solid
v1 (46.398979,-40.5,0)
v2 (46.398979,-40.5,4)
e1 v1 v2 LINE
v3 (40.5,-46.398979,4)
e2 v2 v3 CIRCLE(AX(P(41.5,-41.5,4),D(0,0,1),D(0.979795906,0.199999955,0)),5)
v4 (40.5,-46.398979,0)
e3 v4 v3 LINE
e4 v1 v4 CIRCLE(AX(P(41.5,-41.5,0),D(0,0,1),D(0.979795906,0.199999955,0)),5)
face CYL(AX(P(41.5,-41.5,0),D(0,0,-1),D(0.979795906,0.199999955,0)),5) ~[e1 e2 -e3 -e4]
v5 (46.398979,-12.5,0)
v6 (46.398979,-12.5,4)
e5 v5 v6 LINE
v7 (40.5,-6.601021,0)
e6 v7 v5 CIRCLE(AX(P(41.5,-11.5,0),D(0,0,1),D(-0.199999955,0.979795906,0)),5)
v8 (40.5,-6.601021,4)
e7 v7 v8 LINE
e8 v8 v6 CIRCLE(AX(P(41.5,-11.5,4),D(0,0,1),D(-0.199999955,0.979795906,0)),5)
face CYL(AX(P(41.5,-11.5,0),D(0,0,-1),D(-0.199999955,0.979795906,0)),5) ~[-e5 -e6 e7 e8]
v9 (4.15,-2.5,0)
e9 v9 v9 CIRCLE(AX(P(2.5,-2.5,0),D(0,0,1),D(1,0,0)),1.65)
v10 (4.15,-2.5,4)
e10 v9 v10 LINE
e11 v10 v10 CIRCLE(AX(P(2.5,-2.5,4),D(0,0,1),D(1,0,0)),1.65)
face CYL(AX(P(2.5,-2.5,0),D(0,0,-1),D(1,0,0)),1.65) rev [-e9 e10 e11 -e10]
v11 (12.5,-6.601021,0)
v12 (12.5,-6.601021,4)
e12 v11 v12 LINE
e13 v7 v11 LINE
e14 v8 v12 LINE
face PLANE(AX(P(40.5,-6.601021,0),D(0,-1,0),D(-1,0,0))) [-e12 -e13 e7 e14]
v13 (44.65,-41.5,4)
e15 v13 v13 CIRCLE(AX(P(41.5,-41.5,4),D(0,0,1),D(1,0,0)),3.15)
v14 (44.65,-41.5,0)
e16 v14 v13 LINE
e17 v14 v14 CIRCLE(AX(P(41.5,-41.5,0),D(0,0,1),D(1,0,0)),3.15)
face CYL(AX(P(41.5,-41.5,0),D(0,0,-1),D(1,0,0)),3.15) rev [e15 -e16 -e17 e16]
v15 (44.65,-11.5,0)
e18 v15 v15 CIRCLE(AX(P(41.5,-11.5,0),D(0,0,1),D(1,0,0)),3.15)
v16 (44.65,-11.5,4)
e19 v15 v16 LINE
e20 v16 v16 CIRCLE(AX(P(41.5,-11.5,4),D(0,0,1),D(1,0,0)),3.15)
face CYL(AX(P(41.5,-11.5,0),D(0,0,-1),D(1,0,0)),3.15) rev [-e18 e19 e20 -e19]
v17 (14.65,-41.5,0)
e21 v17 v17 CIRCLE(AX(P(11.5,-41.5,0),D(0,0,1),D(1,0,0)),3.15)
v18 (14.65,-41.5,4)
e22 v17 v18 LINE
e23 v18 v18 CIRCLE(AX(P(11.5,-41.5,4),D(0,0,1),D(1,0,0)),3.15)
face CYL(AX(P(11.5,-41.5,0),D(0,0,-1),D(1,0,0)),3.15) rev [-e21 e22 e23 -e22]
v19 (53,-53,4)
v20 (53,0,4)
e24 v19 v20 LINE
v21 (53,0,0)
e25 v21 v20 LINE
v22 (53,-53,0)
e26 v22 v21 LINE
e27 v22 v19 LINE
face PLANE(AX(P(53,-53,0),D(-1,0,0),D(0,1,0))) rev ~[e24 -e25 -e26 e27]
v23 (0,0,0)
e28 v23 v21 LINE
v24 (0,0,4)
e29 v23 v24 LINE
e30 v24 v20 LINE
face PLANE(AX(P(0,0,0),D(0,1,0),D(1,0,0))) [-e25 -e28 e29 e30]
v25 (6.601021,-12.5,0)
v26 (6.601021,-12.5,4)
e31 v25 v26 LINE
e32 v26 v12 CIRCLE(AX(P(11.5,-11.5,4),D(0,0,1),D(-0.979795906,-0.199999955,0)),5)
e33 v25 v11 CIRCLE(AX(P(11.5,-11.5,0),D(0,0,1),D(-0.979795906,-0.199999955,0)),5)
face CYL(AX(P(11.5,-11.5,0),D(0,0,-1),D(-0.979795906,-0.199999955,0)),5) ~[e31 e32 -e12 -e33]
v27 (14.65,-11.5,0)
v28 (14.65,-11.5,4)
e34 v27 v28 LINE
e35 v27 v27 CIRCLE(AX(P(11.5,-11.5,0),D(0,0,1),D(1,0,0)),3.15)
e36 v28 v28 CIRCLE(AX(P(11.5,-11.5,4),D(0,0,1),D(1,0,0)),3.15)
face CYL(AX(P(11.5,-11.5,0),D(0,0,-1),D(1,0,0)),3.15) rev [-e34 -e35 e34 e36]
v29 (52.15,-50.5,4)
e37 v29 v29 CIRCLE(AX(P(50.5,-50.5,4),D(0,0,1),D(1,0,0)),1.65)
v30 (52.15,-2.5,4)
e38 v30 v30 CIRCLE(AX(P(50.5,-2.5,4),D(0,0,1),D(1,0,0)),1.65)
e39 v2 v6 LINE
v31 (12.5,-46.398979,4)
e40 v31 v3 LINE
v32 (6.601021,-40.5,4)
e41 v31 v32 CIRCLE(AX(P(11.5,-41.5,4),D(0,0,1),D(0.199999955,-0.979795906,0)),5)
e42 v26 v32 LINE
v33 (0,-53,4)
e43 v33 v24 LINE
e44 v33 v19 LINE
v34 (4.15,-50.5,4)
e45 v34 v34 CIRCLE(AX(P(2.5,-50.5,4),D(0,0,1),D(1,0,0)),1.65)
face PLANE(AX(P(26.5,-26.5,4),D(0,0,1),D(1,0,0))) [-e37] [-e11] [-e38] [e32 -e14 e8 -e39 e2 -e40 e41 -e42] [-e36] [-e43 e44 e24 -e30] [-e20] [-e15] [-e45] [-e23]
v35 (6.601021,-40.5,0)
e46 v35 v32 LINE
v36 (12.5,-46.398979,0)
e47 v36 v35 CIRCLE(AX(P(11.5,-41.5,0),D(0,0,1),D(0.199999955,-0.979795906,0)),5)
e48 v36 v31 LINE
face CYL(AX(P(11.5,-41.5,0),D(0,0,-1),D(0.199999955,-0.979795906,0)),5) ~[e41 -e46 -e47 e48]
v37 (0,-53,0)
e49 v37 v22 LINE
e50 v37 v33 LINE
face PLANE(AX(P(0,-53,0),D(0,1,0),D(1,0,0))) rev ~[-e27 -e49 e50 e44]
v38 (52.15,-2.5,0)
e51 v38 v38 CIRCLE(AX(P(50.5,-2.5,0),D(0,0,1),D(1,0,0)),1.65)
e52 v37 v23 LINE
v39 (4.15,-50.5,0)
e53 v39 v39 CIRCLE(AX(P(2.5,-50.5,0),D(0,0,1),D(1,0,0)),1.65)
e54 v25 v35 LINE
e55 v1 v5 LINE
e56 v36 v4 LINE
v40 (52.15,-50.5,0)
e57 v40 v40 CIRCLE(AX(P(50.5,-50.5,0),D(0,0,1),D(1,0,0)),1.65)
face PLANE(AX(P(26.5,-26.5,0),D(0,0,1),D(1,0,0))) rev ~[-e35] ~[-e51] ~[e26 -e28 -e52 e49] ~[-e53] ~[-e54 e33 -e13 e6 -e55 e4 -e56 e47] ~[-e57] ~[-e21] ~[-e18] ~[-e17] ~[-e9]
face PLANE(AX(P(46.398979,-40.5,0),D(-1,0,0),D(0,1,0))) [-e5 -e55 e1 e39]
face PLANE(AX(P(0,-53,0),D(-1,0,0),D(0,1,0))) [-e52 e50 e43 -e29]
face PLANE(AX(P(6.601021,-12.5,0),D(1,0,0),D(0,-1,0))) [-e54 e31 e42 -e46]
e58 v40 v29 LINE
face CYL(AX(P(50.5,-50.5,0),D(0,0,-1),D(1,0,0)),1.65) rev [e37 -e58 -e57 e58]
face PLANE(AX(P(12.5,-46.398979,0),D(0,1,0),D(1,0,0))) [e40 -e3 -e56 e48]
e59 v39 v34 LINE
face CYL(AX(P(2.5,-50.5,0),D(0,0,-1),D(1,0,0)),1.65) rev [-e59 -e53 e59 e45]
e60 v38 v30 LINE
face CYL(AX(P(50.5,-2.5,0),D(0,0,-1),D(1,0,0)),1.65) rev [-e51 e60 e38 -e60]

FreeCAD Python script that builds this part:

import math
import FreeCAD as App
import Part
import Sketcher
from FreeCAD import Vector


def add_polygon(sketch, points):
    """Adds a closed chain of lines whose ends are joined by coincident constraints."""
    first, n = sketch.GeometryCount, len(points)
    for a, b in zip(points, points[1:] + points[:1]):
        sketch.addGeometry(Part.LineSegment(App.Vector(*a, 0), App.Vector(*b, 0)), False)
    for i in range(n):
        sketch.addConstraint(Sketcher.Constraint("Coincident", first + i, 2, first + (i + 1) % n, 1))

doc = App.newDocument("Part")
body = doc.addObject("PartDesign::Body", "Body")

# Sketch on XY plane
sketch1 = body.newObject("Sketcher::SketchObject", "Sketch")
sketch1.AttachmentSupport = (doc.getObject("XY_Plane"), [""])
sketch1.MapMode = "FlatFace"
add_polygon(sketch1, [(0, 0), (0, -53), (53, -53), (53, 0)])  # lines 0-3
sketch1.addGeometry(Part.Circle(Vector(2.5, -50.5, 0), Vector(0, 0, 1), 1.65), False)  # 4
sketch1.addGeometry(Part.Circle(Vector(11.5, -41.5, 0), Vector(0, 0, 1), 3.15), False)  # 5
sketch1.addGeometry(Part.Circle(Vector(50.5, -50.5, 0), Vector(0, 0, 1), 1.65), False)  # 6
sketch1.addGeometry(Part.Circle(Vector(41.5, -41.5, 0), Vector(0, 0, 1), 3.15), False)  # 7
sketch1.addGeometry(Part.Circle(Vector(11.5, -11.5, 0), Vector(0, 0, 1), 3.15), False)  # 8
sketch1.addGeometry(Part.Circle(Vector(2.5, -2.5, 0), Vector(0, 0, 1), 1.65), False)  # 9
sketch1.addGeometry(Part.LineSegment(Vector(6.601021, -40.5, 0), Vector(6.601021, -12.5, 0)), False)  # 10
sketch1.addGeometry(Part.ArcOfCircle(Part.Circle(Vector(11.5, -11.5, 0), Vector(0, 0, 1), 5), math.radians(-168.463044), math.radians(78.463044)), False)  # 11
sketch1.addGeometry(Part.LineSegment(Vector(12.5, -6.601021, 0), Vector(40.5, -6.601021, 0)), False)  # 12
sketch1.addGeometry(Part.ArcOfCircle(Part.Circle(Vector(41.5, -11.5, 0), Vector(0, 0, 1), 5), math.radians(101.536956), math.radians(348.463044)), False)  # 13
sketch1.addGeometry(Part.LineSegment(Vector(46.398979, -12.5, 0), Vector(46.398979, -40.5, 0)), False)  # 14
sketch1.addGeometry(Part.ArcOfCircle(Part.Circle(Vector(41.5, -41.5, 0), Vector(0, 0, 1), 5), math.radians(11.536956), math.radians(258.463044)), False)  # 15
sketch1.addGeometry(Part.LineSegment(Vector(40.5, -46.398979, 0), Vector(12.5, -46.398979, 0)), False)  # 16
sketch1.addGeometry(Part.ArcOfCircle(Part.Circle(Vector(11.5, -41.5, 0), Vector(0, 0, 1), 5), math.radians(-78.463044), math.radians(168.463044)), False)  # 17
sketch1.addGeometry(Part.Circle(Vector(41.5, -11.5, 0), Vector(0, 0, 1), 3.15), False)  # 18
sketch1.addGeometry(Part.Circle(Vector(50.5, -2.5, 0), Vector(0, 0, 1), 1.65), False)  # 19
sketch1.addConstraint(Sketcher.Constraint("Coincident", 10, 2, 11, 1))
sketch1.addConstraint(Sketcher.Constraint("Coincident", 11, 2, 12, 1))
sketch1.addConstraint(Sketcher.Constraint("Coincident", 12, 2, 13, 1))
sketch1.addConstraint(Sketcher.Constraint("Coincident", 13, 2, 14, 1))
sketch1.addConstraint(Sketcher.Constraint("Coincident", 14, 2, 15, 1))
sketch1.addConstraint(Sketcher.Constraint("Coincident", 15, 2, 16, 1))
sketch1.addConstraint(Sketcher.Constraint("Coincident", 16, 2, 17, 1))
sketch1.addConstraint(Sketcher.Constraint("Coincident", 17, 2, 10, 1))
sketch1.addConstraint(Sketcher.Constraint("Vertical", 0))
sketch1.addConstraint(Sketcher.Constraint("Horizontal", 1))
sketch1.addConstraint(Sketcher.Constraint("Vertical", 2))
sketch1.addConstraint(Sketcher.Constraint("Horizontal", 3))
sketch1.addConstraint(Sketcher.Constraint("Vertical", 10))
sketch1.addConstraint(Sketcher.Constraint("Horizontal", 12))
sketch1.addConstraint(Sketcher.Constraint("Vertical", 14))
sketch1.addConstraint(Sketcher.Constraint("Horizontal", 16))
sketch1.addConstraint(Sketcher.Constraint("Coincident", 3, 2, -1, 1))
sketch1.addConstraint(Sketcher.Constraint("Coincident", 11, 3, 8, 3))
sketch1.addConstraint(Sketcher.Constraint("Coincident", 15, 3, 7, 3))
sketch1.addConstraint(Sketcher.Constraint("Coincident", 17, 3, 5, 3))
sketch1.addConstraint(Sketcher.Constraint("Coincident", 18, 3, 13, 3))
sketch1.addConstraint(Sketcher.Constraint("Equal", 4, 6))
sketch1.addConstraint(Sketcher.Constraint("Equal", 5, 7))
sketch1.addConstraint(Sketcher.Constraint("Equal", 7, 8))
sketch1.addConstraint(Sketcher.Constraint("Equal", 6, 9))
sketch1.addConstraint(Sketcher.Constraint("Equal", 11, 13))
sketch1.addConstraint(Sketcher.Constraint("Equal", 13, 15))
sketch1.addConstraint(Sketcher.Constraint("Equal", 15, 17))
sketch1.addConstraint(Sketcher.Constraint("Equal", 8, 18))
sketch1.addConstraint(Sketcher.Constraint("Equal", 9, 19))
sketch1.addConstraint(Sketcher.Constraint("Horizontal", 4, 3, 6, 3))
sketch1.addConstraint(Sketcher.Constraint("Horizontal", 5, 3, 7, 3))
sketch1.addConstraint(Sketcher.Constraint("Horizontal", 11, 3, 13, 3))
sketch1.addConstraint(Sketcher.Constraint("Horizontal", 9, 3, 19, 3))
sketch1.addConstraint(Sketcher.Constraint("Horizontal", 10, 2, 13, 2))
sketch1.addConstraint(Sketcher.Constraint("Horizontal", 14, 2, 17, 2))
sketch1.addConstraint(Sketcher.Constraint("Vertical", 5, 3, 8, 3))
sketch1.addConstraint(Sketcher.Constraint("Vertical", 4, 3, 9, 3))
sketch1.addConstraint(Sketcher.Constraint("Vertical", 6, 3, 19, 3))
sketch1.addConstraint(Sketcher.Constraint("Vertical", 12, 2, 15, 2))
sketch1.addConstraint(Sketcher.Constraint("Equal", 3, 0))
sketch1.addConstraint(Sketcher.Constraint("Equal", 16, 10))
sketch1.addConstraint(Sketcher.Constraint("Radius", 11, 5.0))
sketch1.addConstraint(Sketcher.Constraint("Diameter", 4, 3.3))
sketch1.addConstraint(Sketcher.Constraint("Diameter", 5, 6.3))
sketch1.addConstraint(Sketcher.Constraint("DistanceX", 1, 1, 1, 2, 53.0))
sketch1.addConstraint(Sketcher.Constraint("DistanceX", 12, 1, 12, 2, 28.0))
sketch1.addConstraint(Sketcher.Constraint("DistanceX", 4, 3, 5, 3, 9.0))
sketch1.addConstraint(Sketcher.Constraint("DistanceY", 4, 3, 5, 3, 9.0))
sketch1.addConstraint(Sketcher.Constraint("DistanceX", 5, 3, 6, 3, 39.0))
sketch1.addConstraint(Sketcher.Constraint("DistanceX", 7, 3, 6, 3, 9.0))
sketch1.addConstraint(Sketcher.Constraint("DistanceY", 5, 3, 8, 3, 30.0))
sketch1.addConstraint(Sketcher.Constraint("DistanceY", 8, 3, 9, 3, 9.0))
sketch1.addConstraint(Sketcher.Constraint("DistanceX", -1, 1, 4, 3, 2.5))
sketch1.addConstraint(Sketcher.Constraint("DistanceY", 4, 3, -1, 1, 50.5))
pad1 = body.newObject("PartDesign::Pad", "Pad")
pad1.Profile = sketch1
pad1.Length = 4

doc.recompute()
